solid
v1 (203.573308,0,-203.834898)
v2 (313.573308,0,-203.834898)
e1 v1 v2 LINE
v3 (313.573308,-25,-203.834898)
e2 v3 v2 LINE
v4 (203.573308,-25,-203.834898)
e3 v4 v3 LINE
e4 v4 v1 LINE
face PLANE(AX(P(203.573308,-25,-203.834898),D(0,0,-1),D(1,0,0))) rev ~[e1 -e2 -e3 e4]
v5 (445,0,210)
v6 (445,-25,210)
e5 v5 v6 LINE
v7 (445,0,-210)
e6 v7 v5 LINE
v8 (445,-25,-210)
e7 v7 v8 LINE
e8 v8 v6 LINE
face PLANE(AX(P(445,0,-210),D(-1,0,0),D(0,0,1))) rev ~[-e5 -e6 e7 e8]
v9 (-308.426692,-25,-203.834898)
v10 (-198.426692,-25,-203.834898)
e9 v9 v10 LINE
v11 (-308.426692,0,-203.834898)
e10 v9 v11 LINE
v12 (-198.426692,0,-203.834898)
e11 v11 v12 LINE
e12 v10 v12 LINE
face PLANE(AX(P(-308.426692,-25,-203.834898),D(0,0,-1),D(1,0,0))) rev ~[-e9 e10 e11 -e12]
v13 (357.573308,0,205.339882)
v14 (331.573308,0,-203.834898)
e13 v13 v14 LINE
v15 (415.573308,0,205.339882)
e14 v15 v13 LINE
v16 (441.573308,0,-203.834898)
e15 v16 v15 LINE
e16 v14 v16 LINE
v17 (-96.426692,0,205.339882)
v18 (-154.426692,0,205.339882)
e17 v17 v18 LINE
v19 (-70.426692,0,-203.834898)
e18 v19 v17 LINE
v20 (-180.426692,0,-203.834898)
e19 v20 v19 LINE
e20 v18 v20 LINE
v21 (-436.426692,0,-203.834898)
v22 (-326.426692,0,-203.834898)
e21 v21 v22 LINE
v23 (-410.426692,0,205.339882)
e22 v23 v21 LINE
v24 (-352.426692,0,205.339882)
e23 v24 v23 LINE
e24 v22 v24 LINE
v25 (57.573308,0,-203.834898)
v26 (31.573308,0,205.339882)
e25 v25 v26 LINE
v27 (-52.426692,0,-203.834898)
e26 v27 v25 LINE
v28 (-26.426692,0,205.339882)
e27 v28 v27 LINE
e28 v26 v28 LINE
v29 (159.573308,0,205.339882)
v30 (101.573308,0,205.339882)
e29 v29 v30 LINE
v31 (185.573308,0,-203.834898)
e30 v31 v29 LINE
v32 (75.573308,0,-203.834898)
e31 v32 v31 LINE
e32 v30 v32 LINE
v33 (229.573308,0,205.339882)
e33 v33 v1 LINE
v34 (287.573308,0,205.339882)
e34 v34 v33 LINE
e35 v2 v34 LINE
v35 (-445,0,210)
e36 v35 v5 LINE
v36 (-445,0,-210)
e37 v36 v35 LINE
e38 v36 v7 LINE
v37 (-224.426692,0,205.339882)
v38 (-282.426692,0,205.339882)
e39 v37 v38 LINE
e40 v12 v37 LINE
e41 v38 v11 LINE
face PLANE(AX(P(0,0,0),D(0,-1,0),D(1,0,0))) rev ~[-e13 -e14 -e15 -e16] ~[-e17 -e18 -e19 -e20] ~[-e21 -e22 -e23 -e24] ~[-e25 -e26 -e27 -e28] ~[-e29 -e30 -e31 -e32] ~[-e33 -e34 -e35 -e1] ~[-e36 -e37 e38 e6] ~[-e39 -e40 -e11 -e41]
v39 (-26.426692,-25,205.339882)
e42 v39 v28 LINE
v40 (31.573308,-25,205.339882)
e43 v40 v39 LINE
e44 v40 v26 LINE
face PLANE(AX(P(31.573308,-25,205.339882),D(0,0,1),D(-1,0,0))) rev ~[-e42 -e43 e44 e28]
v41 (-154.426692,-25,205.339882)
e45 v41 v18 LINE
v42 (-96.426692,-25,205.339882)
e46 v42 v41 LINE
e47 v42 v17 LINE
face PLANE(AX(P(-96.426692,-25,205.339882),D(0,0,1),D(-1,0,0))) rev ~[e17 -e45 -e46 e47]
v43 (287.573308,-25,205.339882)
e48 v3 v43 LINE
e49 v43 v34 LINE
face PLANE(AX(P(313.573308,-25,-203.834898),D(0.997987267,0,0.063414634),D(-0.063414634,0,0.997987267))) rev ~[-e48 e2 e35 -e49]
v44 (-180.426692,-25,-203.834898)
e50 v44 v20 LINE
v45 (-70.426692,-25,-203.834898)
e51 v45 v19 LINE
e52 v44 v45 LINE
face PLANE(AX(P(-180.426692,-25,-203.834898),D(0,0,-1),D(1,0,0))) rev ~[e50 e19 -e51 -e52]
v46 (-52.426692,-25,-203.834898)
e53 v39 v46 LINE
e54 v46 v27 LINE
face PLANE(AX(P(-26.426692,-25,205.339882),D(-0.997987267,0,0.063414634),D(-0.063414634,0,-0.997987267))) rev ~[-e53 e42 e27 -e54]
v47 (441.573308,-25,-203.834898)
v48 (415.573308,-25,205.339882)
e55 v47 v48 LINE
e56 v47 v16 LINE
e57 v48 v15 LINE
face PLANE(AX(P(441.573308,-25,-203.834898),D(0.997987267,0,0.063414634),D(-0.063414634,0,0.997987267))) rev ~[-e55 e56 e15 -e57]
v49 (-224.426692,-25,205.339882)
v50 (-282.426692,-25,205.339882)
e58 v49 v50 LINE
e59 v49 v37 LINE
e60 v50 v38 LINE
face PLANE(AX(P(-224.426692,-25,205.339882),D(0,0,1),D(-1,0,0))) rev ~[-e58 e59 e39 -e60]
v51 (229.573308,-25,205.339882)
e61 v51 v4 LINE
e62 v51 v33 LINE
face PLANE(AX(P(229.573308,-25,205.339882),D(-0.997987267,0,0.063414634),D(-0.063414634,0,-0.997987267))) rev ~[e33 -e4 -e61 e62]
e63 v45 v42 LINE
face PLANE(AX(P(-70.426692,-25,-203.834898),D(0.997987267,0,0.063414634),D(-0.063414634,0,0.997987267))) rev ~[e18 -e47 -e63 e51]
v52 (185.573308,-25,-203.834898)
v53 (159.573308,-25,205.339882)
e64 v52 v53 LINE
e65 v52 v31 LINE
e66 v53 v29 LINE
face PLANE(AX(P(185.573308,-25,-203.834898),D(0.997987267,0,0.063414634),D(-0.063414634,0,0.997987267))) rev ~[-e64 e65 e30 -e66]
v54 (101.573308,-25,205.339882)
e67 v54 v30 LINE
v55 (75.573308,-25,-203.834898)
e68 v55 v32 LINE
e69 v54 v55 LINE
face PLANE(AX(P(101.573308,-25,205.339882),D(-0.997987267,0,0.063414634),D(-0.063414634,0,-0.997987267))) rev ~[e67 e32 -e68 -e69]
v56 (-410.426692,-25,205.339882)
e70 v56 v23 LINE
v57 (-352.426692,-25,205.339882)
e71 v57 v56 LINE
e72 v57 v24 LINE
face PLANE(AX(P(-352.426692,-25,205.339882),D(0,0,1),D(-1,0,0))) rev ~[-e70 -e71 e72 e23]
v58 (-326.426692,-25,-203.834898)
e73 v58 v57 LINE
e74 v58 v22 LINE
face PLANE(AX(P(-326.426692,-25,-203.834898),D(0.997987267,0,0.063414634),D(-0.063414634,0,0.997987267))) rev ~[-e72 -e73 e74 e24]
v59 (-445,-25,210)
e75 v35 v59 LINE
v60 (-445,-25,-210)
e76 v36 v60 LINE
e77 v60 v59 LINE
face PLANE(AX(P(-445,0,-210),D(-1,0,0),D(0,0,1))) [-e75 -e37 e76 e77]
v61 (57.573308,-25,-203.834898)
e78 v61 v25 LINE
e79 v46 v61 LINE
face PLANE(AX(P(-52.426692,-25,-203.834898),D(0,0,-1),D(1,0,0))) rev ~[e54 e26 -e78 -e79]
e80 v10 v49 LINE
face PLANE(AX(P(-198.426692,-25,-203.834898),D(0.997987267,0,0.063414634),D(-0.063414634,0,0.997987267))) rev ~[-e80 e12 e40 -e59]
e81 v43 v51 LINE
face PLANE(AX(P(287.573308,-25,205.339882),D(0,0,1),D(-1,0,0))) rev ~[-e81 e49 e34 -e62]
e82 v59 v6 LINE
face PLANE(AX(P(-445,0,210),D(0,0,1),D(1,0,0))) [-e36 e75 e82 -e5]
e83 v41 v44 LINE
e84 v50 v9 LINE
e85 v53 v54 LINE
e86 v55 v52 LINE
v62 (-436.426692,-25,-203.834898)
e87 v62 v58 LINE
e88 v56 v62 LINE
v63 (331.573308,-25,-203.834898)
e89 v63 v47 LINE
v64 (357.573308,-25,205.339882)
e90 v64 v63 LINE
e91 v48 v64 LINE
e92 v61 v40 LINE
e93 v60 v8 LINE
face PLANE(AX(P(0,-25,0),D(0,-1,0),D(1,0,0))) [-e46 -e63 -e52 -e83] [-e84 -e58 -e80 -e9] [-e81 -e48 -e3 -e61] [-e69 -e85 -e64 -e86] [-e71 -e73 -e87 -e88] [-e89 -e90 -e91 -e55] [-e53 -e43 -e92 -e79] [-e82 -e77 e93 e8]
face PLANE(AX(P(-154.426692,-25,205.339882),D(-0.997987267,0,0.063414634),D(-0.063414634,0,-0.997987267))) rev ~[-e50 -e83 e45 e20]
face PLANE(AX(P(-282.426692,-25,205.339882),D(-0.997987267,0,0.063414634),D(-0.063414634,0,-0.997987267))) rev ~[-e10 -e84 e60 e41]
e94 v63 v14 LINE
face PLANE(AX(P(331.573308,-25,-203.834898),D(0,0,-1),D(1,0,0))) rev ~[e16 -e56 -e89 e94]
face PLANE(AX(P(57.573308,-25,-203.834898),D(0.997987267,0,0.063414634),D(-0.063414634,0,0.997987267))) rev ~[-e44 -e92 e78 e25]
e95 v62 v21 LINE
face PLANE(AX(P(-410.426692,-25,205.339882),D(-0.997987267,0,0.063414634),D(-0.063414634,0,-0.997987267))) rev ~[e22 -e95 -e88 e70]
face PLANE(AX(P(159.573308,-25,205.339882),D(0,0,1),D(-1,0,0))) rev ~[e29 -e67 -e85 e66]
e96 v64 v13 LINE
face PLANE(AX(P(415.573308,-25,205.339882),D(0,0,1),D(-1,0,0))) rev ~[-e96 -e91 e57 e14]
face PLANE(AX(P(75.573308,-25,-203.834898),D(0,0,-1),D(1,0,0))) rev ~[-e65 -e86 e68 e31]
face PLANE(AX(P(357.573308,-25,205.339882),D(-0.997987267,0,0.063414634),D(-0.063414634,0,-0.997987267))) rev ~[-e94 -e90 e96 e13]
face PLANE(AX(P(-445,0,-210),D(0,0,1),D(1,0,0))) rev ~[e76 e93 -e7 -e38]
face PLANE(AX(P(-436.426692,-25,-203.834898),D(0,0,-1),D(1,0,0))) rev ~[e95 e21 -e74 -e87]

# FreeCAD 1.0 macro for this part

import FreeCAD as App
import Part
import Sketcher


def add_polygon(sketch, points):
    """Adds a closed chain of lines whose ends are joined by coincident constraints."""
    first, n = sketch.GeometryCount, len(points)
    for a, b in zip(points, points[1:] + points[:1]):
        sketch.addGeometry(Part.LineSegment(App.Vector(*a, 0), App.Vector(*b, 0)), False)
    for i in range(n):
        sketch.addConstraint(Sketcher.Constraint("Coincident", first + i, 2, first + (i + 1) % n, 1))

doc = App.newDocument("Part")
params = doc.addObject("Spreadsheet::Sheet", "Params")
for row, (alias, value) in enumerate([
    ("sketch1_width", "890 mm"),
    ("sketch1_height", "420 mm"),
    ("pad1_length", "25 mm"),
    ("sketch2_width", "110 mm"),
    ("sketch2_width2", "58 mm"),
    ("sketch2_length", "410.000001 mm"),
    ("pocket1_length", "25 mm"),
], start=1):
    params.set(f"A{row}", alias)
    params.set(f"B{row}", "=" + value)
    params.setAlias(f"B{row}", alias)

body = doc.addObject("PartDesign::Body", "Body")

# Sketch on XZ plane
sketch1 = body.newObject("Sketcher::SketchObject", "Sketch")
sketch1.AttachmentSupport = (doc.getObject("XZ_Plane"), [""])
sketch1.MapMode = "FlatFace"
add_polygon(sketch1, [(-445, 210), (-445, -210), (445, -210), (445, 210)])  # lines 0-3
sketch1.addConstraint(Sketcher.Constraint("Vertical", 0))
sketch1.addConstraint(Sketcher.Constraint("Horizontal", 1))
sketch1.addConstraint(Sketcher.Constraint("Vertical", 2))
sketch1.addConstraint(Sketcher.Constraint("Horizontal", 3))
sketch1.addConstraint(Sketcher.Constraint("Symmetric", 0, 2, 2, 2, -1, 1))
sketch1.addConstraint(Sketcher.Constraint("DistanceX", 1, 1, 1, 2, 890.0))
sketch1.addConstraint(Sketcher.Constraint("DistanceY", 0, 2, 0, 1, 420.0))
sketch1.setExpression("Constraints[9]", "Params.sketch1_width")
sketch1.setExpression("Constraints[10]", "Params.sketch1_height")
pad1 = body.newObject("PartDesign::Pad", "Pad")
pad1.Profile = sketch1
pad1.setExpression("Length", "Params.pad1_length")

# Sketch on XZ plane
sketch2 = body.newObject("Sketcher::SketchObject", "Sketch001")
sketch2.AttachmentSupport = (doc.getObject("XZ_Plane"), [""])
sketch2.MapMode = "FlatFace"
sketch2.AttachmentOffset = App.Placement(App.Vector(0, 0, 25), App.Rotation())
add_polygon(sketch2, [(-436, -204), (-326, -204), (-352, 205), (-410, 205)])  # lines 0-3
add_polygon(sketch2, [(-308, -204), (-198, -204), (-224, 205), (-282, 205)])  # lines 4-7
add_polygon(sketch2, [(-180, -204), (-70, -204), (-96, 205), (-154, 205)])  # lines 8-11
add_polygon(sketch2, [(-52, -204), (58, -204), (32, 205), (-26, 205)])  # lines 12-15
add_polygon(sketch2, [(76, -204), (186, -204), (160, 205), (102, 205)])  # lines 16-19
add_polygon(sketch2, [(204, -204), (314, -204), (288, 205), (230, 205)])  # lines 20-23
add_polygon(sketch2, [(332, -204), (442, -204), (416, 205), (358, 205)])  # lines 24-27
sketch2.addConstraint(Sketcher.Constraint("Horizontal", 0))
sketch2.addConstraint(Sketcher.Constraint("Horizontal", 2))
sketch2.addConstraint(Sketcher.Constraint("Horizontal", 4))
sketch2.addConstraint(Sketcher.Constraint("Horizontal", 6))
sketch2.addConstraint(Sketcher.Constraint("Horizontal", 8))
sketch2.addConstraint(Sketcher.Constraint("Horizontal", 10))
sketch2.addConstraint(Sketcher.Constraint("Horizontal", 12))
sketch2.addConstraint(Sketcher.Constraint("Horizontal", 14))
sketch2.addConstraint(Sketcher.Constraint("Horizontal", 16))
sketch2.addConstraint(Sketcher.Constraint("Horizontal", 18))
sketch2.addConstraint(Sketcher.Constraint("Horizontal", 20))
sketch2.addConstraint(Sketcher.Constraint("Horizontal", 22))
sketch2.addConstraint(Sketcher.Constraint("Horizontal", 24))
sketch2.addConstraint(Sketcher.Constraint("Horizontal", 26))
sketch2.addConstraint(Sketcher.Constraint("Parallel", 1, 5))
sketch2.addConstraint(Sketcher.Constraint("Parallel", 3, 7))
sketch2.addConstraint(Sketcher.Constraint("Parallel", 5, 9))
sketch2.addConstraint(Sketcher.Constraint("Parallel", 7, 11))
sketch2.addConstraint(Sketcher.Constraint("Parallel", 9, 13))
sketch2.addConstraint(Sketcher.Constraint("Parallel", 11, 15))
sketch2.addConstraint(Sketcher.Constraint("Parallel", 13, 17))
sketch2.addConstraint(Sketcher.Constraint("Parallel", 15, 19))
sketch2.addConstraint(Sketcher.Constraint("Parallel", 17, 21))
sketch2.addConstraint(Sketcher.Constraint("Parallel", 19, 23))
sketch2.addConstraint(Sketcher.Constraint("Parallel", 21, 25))
sketch2.addConstraint(Sketcher.Constraint("Parallel", 23, 27))
sketch2.addConstraint(Sketcher.Constraint("Horizontal", 3, 2, 4, 2))
sketch2.addConstraint(Sketcher.Constraint("Horizontal", 2, 2, 5, 2))
sketch2.addConstraint(Sketcher.Constraint("Horizontal", 7, 2, 8, 2))
sketch2.addConstraint(Sketcher.Constraint("Horizontal", 6, 2, 9, 2))
sketch2.addConstraint(Sketcher.Constraint("Horizontal", 11, 2, 12, 2))
sketch2.addConstraint(Sketcher.Constraint("Horizontal", 10, 2, 13, 2))
sketch2.addConstraint(Sketcher.Constraint("Horizontal", 15, 2, 16, 2))
sketch2.addConstraint(Sketcher.Constraint("Horizontal", 14, 2, 17, 2))
sketch2.addConstraint(Sketcher.Constraint("Horizontal", 19, 2, 20, 2))
sketch2.addConstraint(Sketcher.Constraint("Horizontal", 18, 2, 21, 2))
sketch2.addConstraint(Sketcher.Constraint("Horizontal", 23, 2, 24, 2))
sketch2.addConstraint(Sketcher.Constraint("Horizontal", 22, 2, 25, 2))
sketch2.addConstraint(Sketcher.Constraint("Equal", 0, 4))
sketch2.addConstraint(Sketcher.Constraint("Equal", 4, 8))
sketch2.addConstraint(Sketcher.Constraint("Equal", 8, 12))
sketch2.addConstraint(Sketcher.Constraint("Equal", 12, 16))
sketch2.addConstraint(Sketcher.Constraint("Equal", 16, 20))
sketch2.addConstraint(Sketcher.Constraint("Equal", 20, 24))
sketch2.addConstraint(Sketcher.Constraint("Equal", 1, 3))
sketch2.addConstraint(Sketcher.Constraint("DistanceX", 0, 1, 0, 2, 110.0))
sketch2.addConstraint(Sketcher.Constraint("DistanceX", 2, 2, 2, 1, 58.0))
sketch2.addConstraint(Sketcher.Constraint("Distance", 1, 410.000001))
sketch2.addConstraint(Sketcher.Constraint("DistanceX", 0, 2, 4, 2, 128.0))
sketch2.addConstraint(Sketcher.Constraint("DistanceX", 4, 2, 8, 2, 128.0))
sketch2.addConstraint(Sketcher.Constraint("DistanceX", 8, 2, 12, 2, 128.0))
sketch2.addConstraint(Sketcher.Constraint("DistanceX", 12, 2, 16, 2, 128.0))
sketch2.addConstraint(Sketcher.Constraint("DistanceX", 16, 2, 20, 2, 128.0))
sketch2.addConstraint(Sketcher.Constraint("DistanceX", 20, 2, 24, 2, 128.0))
sketch2.addConstraint(Sketcher.Constraint("DistanceY", 0, 2, -1, 1, 203.834898))
sketch2.addConstraint(Sketcher.Constraint("DistanceX", 0, 2, -1, 1, 326.426692))
sketch2.setExpression("Constraints[73]", "Params.sketch2_width")
sketch2.setExpression("Constraints[74]", "Params.sketch2_width2")
sketch2.setExpression("Constraints[75]", "Params.sketch2_length")
pocket1 = body.newObject("PartDesign::Pocket", "Pocket")
pocket1.Profile = sketch2
pocket1.setExpression("Length", "Params.pocket1_length")

doc.recompute()
